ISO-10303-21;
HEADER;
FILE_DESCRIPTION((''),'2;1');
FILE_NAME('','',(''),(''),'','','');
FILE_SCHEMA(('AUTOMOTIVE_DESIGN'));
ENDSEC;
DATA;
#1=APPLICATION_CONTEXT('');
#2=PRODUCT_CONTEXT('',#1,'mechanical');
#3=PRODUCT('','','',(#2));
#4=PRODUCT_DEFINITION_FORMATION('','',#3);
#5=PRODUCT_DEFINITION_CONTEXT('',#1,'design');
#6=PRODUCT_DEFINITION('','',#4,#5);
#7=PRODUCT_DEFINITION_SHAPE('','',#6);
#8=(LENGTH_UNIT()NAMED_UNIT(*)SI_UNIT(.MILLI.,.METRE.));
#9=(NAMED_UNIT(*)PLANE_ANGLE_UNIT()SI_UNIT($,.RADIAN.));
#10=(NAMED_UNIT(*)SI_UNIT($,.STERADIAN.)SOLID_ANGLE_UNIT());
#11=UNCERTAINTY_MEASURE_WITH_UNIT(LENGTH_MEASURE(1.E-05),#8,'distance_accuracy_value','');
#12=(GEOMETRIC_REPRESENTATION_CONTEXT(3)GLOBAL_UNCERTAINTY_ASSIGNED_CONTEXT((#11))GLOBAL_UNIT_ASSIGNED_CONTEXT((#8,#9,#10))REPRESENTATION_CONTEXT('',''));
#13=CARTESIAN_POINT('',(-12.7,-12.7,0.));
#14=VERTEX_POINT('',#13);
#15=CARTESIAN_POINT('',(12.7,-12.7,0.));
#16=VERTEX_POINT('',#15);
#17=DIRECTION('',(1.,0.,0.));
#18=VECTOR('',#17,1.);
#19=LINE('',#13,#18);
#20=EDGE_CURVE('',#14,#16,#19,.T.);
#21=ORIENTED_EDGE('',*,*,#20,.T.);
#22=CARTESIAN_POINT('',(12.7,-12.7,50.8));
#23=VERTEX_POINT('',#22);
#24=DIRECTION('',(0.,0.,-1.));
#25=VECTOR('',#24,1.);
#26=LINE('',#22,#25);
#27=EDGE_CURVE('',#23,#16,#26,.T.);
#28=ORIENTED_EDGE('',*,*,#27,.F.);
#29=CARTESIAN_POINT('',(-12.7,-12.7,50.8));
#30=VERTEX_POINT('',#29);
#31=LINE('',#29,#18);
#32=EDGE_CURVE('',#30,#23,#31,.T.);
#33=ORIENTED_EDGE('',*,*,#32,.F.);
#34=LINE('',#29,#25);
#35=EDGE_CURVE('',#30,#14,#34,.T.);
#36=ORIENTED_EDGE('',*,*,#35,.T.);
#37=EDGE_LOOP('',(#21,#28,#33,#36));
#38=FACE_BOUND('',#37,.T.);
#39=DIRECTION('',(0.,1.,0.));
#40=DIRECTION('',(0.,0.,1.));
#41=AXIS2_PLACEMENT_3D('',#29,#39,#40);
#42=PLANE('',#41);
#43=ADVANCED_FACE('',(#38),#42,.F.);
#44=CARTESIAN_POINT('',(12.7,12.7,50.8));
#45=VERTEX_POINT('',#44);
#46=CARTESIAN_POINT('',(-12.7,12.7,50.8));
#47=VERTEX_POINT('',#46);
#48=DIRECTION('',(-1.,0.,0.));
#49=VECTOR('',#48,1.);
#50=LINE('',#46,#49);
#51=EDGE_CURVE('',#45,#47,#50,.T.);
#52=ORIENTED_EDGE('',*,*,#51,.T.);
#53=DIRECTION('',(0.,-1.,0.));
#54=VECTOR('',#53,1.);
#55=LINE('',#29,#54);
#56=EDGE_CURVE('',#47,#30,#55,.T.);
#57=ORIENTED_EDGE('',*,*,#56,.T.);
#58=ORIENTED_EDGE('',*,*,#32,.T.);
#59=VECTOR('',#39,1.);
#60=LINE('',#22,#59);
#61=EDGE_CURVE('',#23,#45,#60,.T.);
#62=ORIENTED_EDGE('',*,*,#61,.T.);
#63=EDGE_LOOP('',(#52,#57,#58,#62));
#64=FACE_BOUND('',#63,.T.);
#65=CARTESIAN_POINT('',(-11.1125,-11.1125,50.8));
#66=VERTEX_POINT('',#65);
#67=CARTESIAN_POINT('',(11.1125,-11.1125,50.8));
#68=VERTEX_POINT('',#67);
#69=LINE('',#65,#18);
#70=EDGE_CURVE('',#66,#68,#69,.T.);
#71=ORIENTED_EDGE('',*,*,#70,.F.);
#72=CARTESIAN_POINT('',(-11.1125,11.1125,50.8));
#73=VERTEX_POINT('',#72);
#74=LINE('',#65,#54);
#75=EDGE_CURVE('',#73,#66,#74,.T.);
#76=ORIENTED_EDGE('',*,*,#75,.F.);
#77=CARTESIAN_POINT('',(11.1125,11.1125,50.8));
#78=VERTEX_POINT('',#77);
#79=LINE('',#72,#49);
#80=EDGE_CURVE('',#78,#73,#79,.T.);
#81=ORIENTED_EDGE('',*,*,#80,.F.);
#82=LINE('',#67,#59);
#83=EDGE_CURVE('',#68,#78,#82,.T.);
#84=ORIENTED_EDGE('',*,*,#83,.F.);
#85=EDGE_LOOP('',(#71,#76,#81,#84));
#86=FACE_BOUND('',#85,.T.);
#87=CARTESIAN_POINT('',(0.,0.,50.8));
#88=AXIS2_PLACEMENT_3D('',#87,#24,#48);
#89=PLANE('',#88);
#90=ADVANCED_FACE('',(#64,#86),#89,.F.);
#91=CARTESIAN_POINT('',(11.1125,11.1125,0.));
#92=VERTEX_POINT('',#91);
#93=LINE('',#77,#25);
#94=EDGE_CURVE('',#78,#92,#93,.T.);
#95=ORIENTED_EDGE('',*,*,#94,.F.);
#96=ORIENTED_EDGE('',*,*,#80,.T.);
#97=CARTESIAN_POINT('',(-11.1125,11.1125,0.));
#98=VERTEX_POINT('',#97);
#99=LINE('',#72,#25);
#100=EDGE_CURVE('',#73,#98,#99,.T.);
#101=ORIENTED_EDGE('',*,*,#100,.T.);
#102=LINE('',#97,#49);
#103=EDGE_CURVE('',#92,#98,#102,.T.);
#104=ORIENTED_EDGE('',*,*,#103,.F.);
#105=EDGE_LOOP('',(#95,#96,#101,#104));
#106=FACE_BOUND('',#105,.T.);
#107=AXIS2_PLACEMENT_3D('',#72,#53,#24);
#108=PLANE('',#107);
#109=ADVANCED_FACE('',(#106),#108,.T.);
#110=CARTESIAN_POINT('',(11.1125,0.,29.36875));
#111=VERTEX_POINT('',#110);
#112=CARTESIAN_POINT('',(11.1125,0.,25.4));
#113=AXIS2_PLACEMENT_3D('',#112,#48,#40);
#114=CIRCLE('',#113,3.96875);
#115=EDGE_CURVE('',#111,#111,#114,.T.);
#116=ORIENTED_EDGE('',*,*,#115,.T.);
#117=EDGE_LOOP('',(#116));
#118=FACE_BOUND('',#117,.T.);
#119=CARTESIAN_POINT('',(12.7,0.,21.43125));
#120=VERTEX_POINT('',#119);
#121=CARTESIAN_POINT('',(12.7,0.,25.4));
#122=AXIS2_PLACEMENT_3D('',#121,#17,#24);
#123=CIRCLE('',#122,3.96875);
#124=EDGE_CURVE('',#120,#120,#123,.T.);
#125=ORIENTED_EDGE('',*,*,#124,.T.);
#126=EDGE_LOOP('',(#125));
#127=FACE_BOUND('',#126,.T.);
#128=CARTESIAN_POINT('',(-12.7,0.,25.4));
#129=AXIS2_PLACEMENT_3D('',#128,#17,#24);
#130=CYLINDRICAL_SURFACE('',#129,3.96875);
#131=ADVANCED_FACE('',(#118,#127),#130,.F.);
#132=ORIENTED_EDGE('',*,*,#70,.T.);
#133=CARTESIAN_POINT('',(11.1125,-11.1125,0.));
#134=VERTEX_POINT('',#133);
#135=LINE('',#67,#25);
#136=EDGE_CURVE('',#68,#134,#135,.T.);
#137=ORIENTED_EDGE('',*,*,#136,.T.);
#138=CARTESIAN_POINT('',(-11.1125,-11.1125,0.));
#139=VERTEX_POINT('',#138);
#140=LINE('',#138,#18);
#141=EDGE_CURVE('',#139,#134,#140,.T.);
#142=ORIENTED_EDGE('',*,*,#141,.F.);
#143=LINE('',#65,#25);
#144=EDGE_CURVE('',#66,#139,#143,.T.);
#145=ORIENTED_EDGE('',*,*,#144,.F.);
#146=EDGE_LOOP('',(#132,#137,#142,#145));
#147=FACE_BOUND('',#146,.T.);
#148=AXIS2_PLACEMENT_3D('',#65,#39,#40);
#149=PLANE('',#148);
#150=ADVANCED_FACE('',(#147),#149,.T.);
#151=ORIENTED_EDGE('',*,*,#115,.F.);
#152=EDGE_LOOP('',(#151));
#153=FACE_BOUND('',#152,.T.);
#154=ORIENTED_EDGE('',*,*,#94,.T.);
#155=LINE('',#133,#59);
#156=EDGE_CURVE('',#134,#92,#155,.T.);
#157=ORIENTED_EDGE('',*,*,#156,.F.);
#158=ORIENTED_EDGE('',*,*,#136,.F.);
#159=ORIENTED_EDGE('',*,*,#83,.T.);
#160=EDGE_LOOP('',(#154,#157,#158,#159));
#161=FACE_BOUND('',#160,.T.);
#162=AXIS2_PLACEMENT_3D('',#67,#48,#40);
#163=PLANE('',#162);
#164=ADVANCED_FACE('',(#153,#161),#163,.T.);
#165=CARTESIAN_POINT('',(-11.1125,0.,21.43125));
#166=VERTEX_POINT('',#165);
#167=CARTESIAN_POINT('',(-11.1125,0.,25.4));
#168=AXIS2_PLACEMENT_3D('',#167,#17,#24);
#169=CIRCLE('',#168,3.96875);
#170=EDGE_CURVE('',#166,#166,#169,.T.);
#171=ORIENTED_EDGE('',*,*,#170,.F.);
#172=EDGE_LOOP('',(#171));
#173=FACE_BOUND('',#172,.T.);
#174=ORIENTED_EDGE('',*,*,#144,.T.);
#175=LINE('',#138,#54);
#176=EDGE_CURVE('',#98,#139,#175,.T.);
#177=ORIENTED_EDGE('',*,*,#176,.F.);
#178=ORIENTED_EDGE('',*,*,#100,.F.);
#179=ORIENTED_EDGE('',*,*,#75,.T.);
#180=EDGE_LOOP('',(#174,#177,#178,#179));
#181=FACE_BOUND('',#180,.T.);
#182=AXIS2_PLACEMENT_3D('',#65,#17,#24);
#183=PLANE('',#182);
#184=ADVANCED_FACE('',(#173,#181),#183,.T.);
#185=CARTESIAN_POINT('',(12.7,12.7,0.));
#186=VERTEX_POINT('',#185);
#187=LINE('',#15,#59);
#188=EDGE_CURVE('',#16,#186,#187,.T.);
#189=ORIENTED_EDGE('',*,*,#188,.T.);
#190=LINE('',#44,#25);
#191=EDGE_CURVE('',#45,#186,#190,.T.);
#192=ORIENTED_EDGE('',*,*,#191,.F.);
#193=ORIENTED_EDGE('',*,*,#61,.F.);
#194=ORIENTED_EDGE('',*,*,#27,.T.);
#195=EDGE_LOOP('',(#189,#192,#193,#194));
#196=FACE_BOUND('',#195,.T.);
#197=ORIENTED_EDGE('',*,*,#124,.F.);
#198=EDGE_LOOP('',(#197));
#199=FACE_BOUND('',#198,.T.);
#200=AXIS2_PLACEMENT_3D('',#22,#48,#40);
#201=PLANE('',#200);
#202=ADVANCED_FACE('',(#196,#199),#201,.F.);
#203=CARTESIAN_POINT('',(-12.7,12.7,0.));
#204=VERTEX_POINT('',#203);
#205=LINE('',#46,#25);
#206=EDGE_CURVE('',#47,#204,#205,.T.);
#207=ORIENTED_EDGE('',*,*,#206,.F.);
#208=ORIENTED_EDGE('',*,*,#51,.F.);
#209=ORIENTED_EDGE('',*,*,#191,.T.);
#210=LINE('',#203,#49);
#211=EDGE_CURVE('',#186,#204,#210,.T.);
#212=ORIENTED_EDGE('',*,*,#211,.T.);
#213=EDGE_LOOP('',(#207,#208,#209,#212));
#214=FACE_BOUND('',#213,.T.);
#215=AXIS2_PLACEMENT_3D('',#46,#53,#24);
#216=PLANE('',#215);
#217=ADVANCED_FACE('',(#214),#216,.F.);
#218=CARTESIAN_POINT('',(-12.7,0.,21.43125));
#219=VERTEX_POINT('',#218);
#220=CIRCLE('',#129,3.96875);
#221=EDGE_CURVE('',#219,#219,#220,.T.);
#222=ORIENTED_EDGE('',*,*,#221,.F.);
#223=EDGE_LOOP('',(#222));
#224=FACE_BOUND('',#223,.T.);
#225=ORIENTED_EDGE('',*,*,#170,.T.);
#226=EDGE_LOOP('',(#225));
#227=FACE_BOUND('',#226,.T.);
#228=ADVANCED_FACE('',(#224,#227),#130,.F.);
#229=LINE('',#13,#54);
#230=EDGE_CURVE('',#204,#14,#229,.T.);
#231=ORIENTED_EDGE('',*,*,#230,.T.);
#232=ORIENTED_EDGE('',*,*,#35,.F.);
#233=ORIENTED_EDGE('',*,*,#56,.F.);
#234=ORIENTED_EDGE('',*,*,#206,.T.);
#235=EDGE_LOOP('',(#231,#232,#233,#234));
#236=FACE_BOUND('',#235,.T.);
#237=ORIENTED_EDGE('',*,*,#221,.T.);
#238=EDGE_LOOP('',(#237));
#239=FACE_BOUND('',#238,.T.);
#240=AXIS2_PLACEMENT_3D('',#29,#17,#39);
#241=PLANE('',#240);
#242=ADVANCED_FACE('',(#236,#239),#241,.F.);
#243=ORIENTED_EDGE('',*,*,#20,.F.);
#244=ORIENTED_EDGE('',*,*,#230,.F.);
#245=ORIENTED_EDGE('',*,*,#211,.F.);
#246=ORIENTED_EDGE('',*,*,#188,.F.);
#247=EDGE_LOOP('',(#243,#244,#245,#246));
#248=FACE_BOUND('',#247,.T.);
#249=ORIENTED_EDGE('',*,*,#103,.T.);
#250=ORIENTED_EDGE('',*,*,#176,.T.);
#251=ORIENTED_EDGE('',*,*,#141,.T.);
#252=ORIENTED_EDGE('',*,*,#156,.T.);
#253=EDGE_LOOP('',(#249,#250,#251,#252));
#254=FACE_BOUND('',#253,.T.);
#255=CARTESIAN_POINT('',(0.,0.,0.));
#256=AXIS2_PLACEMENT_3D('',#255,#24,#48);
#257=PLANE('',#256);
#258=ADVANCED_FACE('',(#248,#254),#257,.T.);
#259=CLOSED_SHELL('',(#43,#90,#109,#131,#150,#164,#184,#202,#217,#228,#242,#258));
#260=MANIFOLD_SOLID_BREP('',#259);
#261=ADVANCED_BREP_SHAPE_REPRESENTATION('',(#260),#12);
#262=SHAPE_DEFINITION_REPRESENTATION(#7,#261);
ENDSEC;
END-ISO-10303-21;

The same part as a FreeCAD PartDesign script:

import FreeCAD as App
import Part
import Sketcher

V = App.Vector
Q = App.Units.Quantity


def add_polygon(sketch, points):
    """Adds a closed chain of lines whose ends are joined by coincident constraints."""
    first, n = sketch.GeometryCount, len(points)
    for a, b in zip(points, points[1:] + points[:1]):
        sketch.addGeometry(Part.LineSegment(App.Vector(*a, 0), App.Vector(*b, 0)), False)
    for i in range(n):
        sketch.addConstraint(Sketcher.Constraint("Coincident", first + i, 2, first + (i + 1) % n, 1))

doc = App.newDocument("Part")
params = doc.addObject("Spreadsheet::Sheet", "Params")
for row, (alias, value) in enumerate([
    ("sketch1_width", "1 in"),
    ("sketch1_width2", "0.875 in"),
    ("pad1_length", "2 in"),
    ("sketch2_diameter", "0.3125 in"),
], start=1):
    params.set(f"A{row}", alias)
    params.set(f"B{row}", "=" + value)
    params.setAlias(f"B{row}", alias)

body = doc.addObject("PartDesign::Body", "Body")

# Sketch on XY plane
sketch1 = doc.addObject("Sketcher::SketchObject", "Sketch")
body.addObject(sketch1)
sketch1.AttachmentSupport = (doc.XY_Plane, [""])
sketch1.MapMode = "FlatFace"
add_polygon(sketch1, [(-13, 13), (-13, -13), (13, -13), (13, 13)])  # lines 0-3
add_polygon(sketch1, [(11, -11), (-11, -11), (-11, 11), (11, 11)])  # lines 4-7
sketch1.addConstraint(Sketcher.Constraint("Vertical", 0))
sketch1.addConstraint(Sketcher.Constraint("Horizontal", 1))
sketch1.addConstraint(Sketcher.Constraint("Vertical", 2))
sketch1.addConstraint(Sketcher.Constraint("Horizontal", 3))
sketch1.addConstraint(Sketcher.Constraint("Horizontal", 4))
sketch1.addConstraint(Sketcher.Constraint("Vertical", 5))
sketch1.addConstraint(Sketcher.Constraint("Horizontal", 6))
sketch1.addConstraint(Sketcher.Constraint("Vertical", 7))
sketch1.addConstraint(Sketcher.Constraint("Symmetric", 0, 2, 2, 2, -1, 1))
sketch1.addConstraint(Sketcher.Constraint("Symmetric", 4, 2, 6, 2, -1, 1))
sketch1.addConstraint(Sketcher.Constraint("Equal", 3, 0))
sketch1.addConstraint(Sketcher.Constraint("Equal", 6, 5))
sketch1.addConstraint(Sketcher.Constraint("DistanceX", 1, 1, 1, 2, Q("1 in")))
sketch1.addConstraint(Sketcher.Constraint("DistanceX", 4, 2, 4, 1, Q("0.875 in")))
sketch1.setExpression("Constraints[20]", "Params.sketch1_width")
sketch1.setExpression("Constraints[21]", "Params.sketch1_width2")
pad1 = doc.addObject("PartDesign::Pad", "Pad")
body.addObject(pad1)
pad1.Profile = sketch1
pad1.setExpression("Length", "Params.pad1_length")

# Sketch on YZ plane
sketch2 = doc.addObject("Sketcher::SketchObject", "Sketch001")
body.addObject(sketch2)
sketch2.AttachmentSupport = (doc.YZ_Plane, [""])
sketch2.MapMode = "FlatFace"
sketch2.AttachmentOffset = App.Placement(V(0, 0, 0.5 * 25.4), App.Rotation())
sketch2.addGeometry(Part.Circle(V(0, 25.4, 0), V(0, 0, 1), 4), False)
sketch2.addConstraint(Sketcher.Constraint("PointOnObject", 0, 3, -2))
sketch2.addConstraint(Sketcher.Constraint("Diameter", 0, Q("0.3125 in")))
sketch2.addConstraint(Sketcher.Constraint("DistanceY", -1, 1, 0, 3, Q("1 in")))
sketch2.setExpression("Constraints[1]", "Params.sketch2_diameter")
pocket1 = doc.addObject("PartDesign::Pocket", "Pocket")
body.addObject(pocket1)
pocket1.Profile = sketch2
pocket1.Type = "ThroughAll"

doc.recompute()
